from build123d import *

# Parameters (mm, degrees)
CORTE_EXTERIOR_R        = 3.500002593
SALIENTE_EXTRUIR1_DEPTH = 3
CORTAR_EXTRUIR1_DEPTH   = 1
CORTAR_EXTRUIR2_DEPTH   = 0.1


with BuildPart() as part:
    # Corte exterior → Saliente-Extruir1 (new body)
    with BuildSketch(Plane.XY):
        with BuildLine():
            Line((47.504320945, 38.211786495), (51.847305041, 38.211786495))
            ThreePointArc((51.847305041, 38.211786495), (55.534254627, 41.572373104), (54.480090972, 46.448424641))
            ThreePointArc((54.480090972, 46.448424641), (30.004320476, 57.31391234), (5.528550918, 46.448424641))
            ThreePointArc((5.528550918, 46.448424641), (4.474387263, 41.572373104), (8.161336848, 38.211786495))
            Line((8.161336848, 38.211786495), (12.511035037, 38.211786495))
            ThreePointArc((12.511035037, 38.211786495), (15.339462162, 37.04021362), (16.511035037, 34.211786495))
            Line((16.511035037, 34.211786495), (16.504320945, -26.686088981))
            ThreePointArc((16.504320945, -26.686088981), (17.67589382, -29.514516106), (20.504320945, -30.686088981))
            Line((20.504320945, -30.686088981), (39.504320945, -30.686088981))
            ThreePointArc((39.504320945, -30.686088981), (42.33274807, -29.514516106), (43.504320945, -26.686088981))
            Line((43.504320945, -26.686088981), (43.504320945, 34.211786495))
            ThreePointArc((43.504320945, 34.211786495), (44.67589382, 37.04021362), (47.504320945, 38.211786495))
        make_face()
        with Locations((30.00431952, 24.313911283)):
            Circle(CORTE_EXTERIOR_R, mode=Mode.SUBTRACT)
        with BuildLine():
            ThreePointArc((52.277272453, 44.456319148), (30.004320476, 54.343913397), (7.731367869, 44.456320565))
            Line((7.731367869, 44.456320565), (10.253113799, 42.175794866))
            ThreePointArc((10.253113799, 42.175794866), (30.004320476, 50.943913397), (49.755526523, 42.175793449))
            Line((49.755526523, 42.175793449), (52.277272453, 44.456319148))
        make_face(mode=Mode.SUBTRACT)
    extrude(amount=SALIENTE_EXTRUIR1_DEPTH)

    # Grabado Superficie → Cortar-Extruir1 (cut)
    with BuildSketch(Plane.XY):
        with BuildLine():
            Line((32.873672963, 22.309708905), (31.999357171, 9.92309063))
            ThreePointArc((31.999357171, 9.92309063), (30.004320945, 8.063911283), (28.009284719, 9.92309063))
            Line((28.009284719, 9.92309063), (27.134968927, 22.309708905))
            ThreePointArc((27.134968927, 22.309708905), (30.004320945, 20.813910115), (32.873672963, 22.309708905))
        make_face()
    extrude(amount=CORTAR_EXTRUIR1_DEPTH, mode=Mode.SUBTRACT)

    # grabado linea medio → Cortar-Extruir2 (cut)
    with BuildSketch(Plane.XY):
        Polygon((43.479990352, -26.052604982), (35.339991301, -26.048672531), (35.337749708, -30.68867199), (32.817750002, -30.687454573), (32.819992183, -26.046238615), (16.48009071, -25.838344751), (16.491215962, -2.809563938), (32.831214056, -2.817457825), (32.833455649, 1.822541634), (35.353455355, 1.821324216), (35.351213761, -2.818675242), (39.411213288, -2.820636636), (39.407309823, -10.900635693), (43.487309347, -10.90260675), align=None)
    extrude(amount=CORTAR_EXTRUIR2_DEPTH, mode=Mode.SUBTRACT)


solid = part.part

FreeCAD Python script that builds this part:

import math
import FreeCAD as App
import Part
import Sketcher
from FreeCAD import Vector


def add_polygon(sketch, points):
    """Adds a closed chain of lines whose ends are joined by coincident constraints."""
    first, n = sketch.GeometryCount, len(points)
    for a, b in zip(points, points[1:] + points[:1]):
        sketch.addGeometry(Part.LineSegment(App.Vector(*a, 0), App.Vector(*b, 0)), False)
    for i in range(n):
        sketch.addConstraint(Sketcher.Constraint("Coincident", first + i, 2, first + (i + 1) % n, 1))

doc = App.newDocument("Part")
body = doc.addObject("PartDesign::Body", "Body")

# Sketch on XY plane
sketch1 = doc.addObject("Sketcher::SketchObject", "Sketch")
body.addObject(sketch1)
sketch1.AttachmentSupport = (doc.XY_Plane, [""])
sketch1.MapMode = "FlatFace"
sketch1.addGeometry([
    Part.LineSegment(Vector(47.5, 38.2, 0), Vector(51.8, 38.2, 0)),  # 0
    Part.ArcOfCircle(Part.Circle(Vector(50.8, 43.1, 0), Vector(0, 0, 1), 5), math.radians(-78), math.radians(42)),  # 1
    Part.ArcOfCircle(Part.Circle(Vector(30, 24.3, 0), Vector(0, 0, 1), 33), math.radians(42), math.radians(138)),  # 2
    Part.ArcOfCircle(Part.Circle(Vector(9.2, 43.1, 0), Vector(0, 0, 1), 5), math.radians(138), math.radians(258)),  # 3
    Part.LineSegment(Vector(8.2, 38.2, 0), Vector(12.5, 38.2, 0)),  # 4
    Part.ArcOfCircle(Part.Circle(Vector(12.5, 34.2, 0), Vector(0, 0, 1), 4), math.radians(0), math.radians(90)),  # 5
    Part.LineSegment(Vector(16.5, 34.2, 0), Vector(16.5, -26.7, 0)),  # 6
    Part.ArcOfCircle(Part.Circle(Vector(20.5, -26.7, 0), Vector(0, 0, 1), 4), math.radians(180), math.radians(270)),  # 7
    Part.LineSegment(Vector(20.5, -30.7, 0), Vector(39.5, -30.7, 0)),  # 8
    Part.ArcOfCircle(Part.Circle(Vector(39.5, -26.7, 0), Vector(0, 0, 1), 4), math.radians(-90), math.radians(0)),  # 9
    Part.LineSegment(Vector(43.5, -26.7, 0), Vector(43.5, 34.2, 0)),  # 10
    Part.ArcOfCircle(Part.Circle(Vector(47.5, 34.2, 0), Vector(0, 0, 1), 4), math.radians(90), math.radians(180)),  # 11
    Part.Circle(Vector(30, 24.3, 0), Vector(0, 0, 1), 3.5),  # 12
    Part.ArcOfCircle(Part.Circle(Vector(30, 24.3, 0), Vector(0, 0, 1), 30), math.radians(42), math.radians(138)),  # 13
    Part.LineSegment(Vector(52.3, 44.5, 0), Vector(49.8, 42.2, 0)),  # 14
    Part.ArcOfCircle(Part.Circle(Vector(30, 24.3, 0), Vector(0, 0, 1), 26.6), math.radians(42), math.radians(138)),  # 15
    Part.LineSegment(Vector(10.3, 42.2, 0), Vector(7.7, 44.5, 0)),  # 16
], False)
sketch1.addConstraint([
    Sketcher.Constraint("Coincident", 0, 2, 1, 1),
    Sketcher.Constraint("Tangent", 1, 2, 2, 1),
    Sketcher.Constraint("Tangent", 2, 2, 3, 1),
    Sketcher.Constraint("Coincident", 3, 2, 4, 1),
    Sketcher.Constraint("Tangent", 4, 2, 5, 2),
    Sketcher.Constraint("Coincident", 5, 1, 6, 1),
    Sketcher.Constraint("Coincident", 6, 2, 7, 1),
    Sketcher.Constraint("Tangent", 7, 2, 8, 1),
    Sketcher.Constraint("Tangent", 8, 2, 9, 1),
    Sketcher.Constraint("Tangent", 9, 2, 10, 1),
    Sketcher.Constraint("Tangent", 10, 2, 11, 2),
    Sketcher.Constraint("Tangent", 11, 1, 0, 1),
    Sketcher.Constraint("Coincident", 13, 1, 14, 1),
    Sketcher.Constraint("Coincident", 14, 2, 15, 1),
    Sketcher.Constraint("Coincident", 15, 2, 16, 1),
    Sketcher.Constraint("Coincident", 16, 2, 13, 2),
    Sketcher.Constraint("Horizontal", 0),
    Sketcher.Constraint("Horizontal", 4),
    Sketcher.Constraint("Horizontal", 8),
    Sketcher.Constraint("Vertical", 10),
    Sketcher.Constraint("Coincident", 12, 3, 2, 3),
    Sketcher.Constraint("Coincident", 13, 3, 2, 3),
    Sketcher.Constraint("Coincident", 15, 3, 2, 3),
    Sketcher.Constraint("Equal", 1, 3),
    Sketcher.Constraint("Equal", 5, 7),
    Sketcher.Constraint("Equal", 7, 9),
    Sketcher.Constraint("Equal", 9, 11),
    Sketcher.Constraint("Horizontal", 1, 3, 3, 3),
    Sketcher.Constraint("Horizontal", 5, 3, 11, 3),
    Sketcher.Constraint("Horizontal", 11, 3, 5, 1),
    Sketcher.Constraint("Horizontal", 9, 3, 6, 2),
    Sketcher.Constraint("Horizontal", 14, 2, 15, 2),
    Sketcher.Constraint("Horizontal", 13, 1, 16, 2),
    Sketcher.Constraint("Radius", 1, 5.0),
    Sketcher.Constraint("Radius", 5, 4.0),
    Sketcher.Constraint("DistanceX", 8, 1, 8, 2, 19.0),
    Sketcher.Constraint("DistanceY", 6, 2, 12, 3, 51.0),
    Sketcher.Constraint("Distance", 14, 3.4),
    Sketcher.Constraint("DistanceX", 7, 3, 2, 3, 9.5),
    Sketcher.Constraint("Diameter", 12, 7.000005),
    Sketcher.Constraint("DistanceX", 4, 1, 4, 2, 4.349698),
    Sketcher.Constraint("DistanceX", -1, 1, 3, 3, 9.237001),
    Sketcher.Constraint("Radius", 2, 32.999998),
    Sketcher.Constraint("Radius", 13, 30.030002),
    Sketcher.Constraint("DistanceY", 7, 3, 3, 3, 69.780799),
    Sketcher.Constraint("DistanceX", 0, 1, 0, 2, 4.342984),
    Sketcher.Constraint("DistanceY", -1, 1, 1, 3, 43.09471),
    Sketcher.Constraint("DistanceY", -1, 1, 13, 1, 44.456319),
    Sketcher.Constraint("DistanceX", 14, 2, 0, 2, 2.091779),
])
pad1 = doc.addObject("PartDesign::Pad", "Pad")
body.addObject(pad1)
pad1.Profile = sketch1
pad1.Length = 3

# Sketch on XY plane
sketch2 = doc.addObject("Sketcher::SketchObject", "Sketch001")
body.addObject(sketch2)
sketch2.AttachmentSupport = (doc.XY_Plane, [""])
sketch2.MapMode = "FlatFace"
sketch2.addGeometry([
    Part.LineSegment(Vector(32, 9.9, 0), Vector(32.9, 22.3, 0)),
    Part.ArcOfCircle(Part.Circle(Vector(30, 24.3, 0), Vector(0, 0, 1), 3.5), math.radians(-145), math.radians(-35)),
    Part.LineSegment(Vector(27.1, 22.3, 0), Vector(28, 9.9, 0)),
    Part.ArcOfCircle(Part.Circle(Vector(30, 10.1, 0), Vector(0, 0, 1), 2), math.radians(-176), math.radians(-4)),
], False)
sketch2.addConstraint([
    Sketcher.Constraint("Coincident", 0, 2, 1, 2),
    Sketcher.Constraint("Coincident", 1, 1, 2, 1),
    Sketcher.Constraint("Tangent", 2, 2, 3, 1),
    Sketcher.Constraint("Tangent", 3, 2, 0, 1),
    Sketcher.Constraint("Horizontal", 0, 2, 1, 1),
    Sketcher.Constraint("Horizontal", 2, 2, 3, 2),
    Sketcher.Constraint("Radius", 3, 2.0),
    Sketcher.Constraint("Radius", 1, 3.500001),
    Sketcher.Constraint("DistanceY", 3, 3, 1, 3, 14.25),
    Sketcher.Constraint("DistanceX", -1, 1, 1, 3, 30.004321),
    Sketcher.Constraint("DistanceY", -1, 1, 1, 3, 24.313911),
    Sketcher.Constraint("DistanceY", -1, 1, 0, 2, 22.309709),
])
pocket1 = doc.addObject("PartDesign::Pocket", "Pocket")
body.addObject(pocket1)
pocket1.Profile = sketch2
pocket1.Length = 1
pocket1.Reversed = True

# Sketch on XY plane
sketch3 = doc.addObject("Sketcher::SketchObject", "Sketch002")
body.addObject(sketch3)
sketch3.AttachmentSupport = (doc.XY_Plane, [""])
sketch3.MapMode = "FlatFace"
add_polygon(sketch3, [(35.3, -26), (43.5, -26.1), (43.5, -10.9), (39.4, -10.9), (39.4, -2.8), (35.4, -2.8), (35.4, 1.8), (32.8, 1.8), (32.8, -2.8), (16.5, -2.8), (16.5, -25.8), (32.8, -26), (32.8, -30.7), (35.3, -30.7)])  # lines 0-13
sketch3.addConstraint([
    Sketcher.Constraint("Perpendicular", 0, 1),
    Sketcher.Constraint("Perpendicular", 1, 2),
    Sketcher.Constraint("Perpendicular", 2, 3),
    Sketcher.Constraint("Perpendicular", 3, 4),
    Sketcher.Constraint("Perpendicular", 4, 5),
    Sketcher.Constraint("Perpendicular", 5, 6),
    Sketcher.Constraint("Perpendicular", 6, 7),
    Sketcher.Constraint("Perpendicular", 7, 8),
    Sketcher.Constraint("Perpendicular", 8, 9),
    Sketcher.Constraint("Parallel", 9, 11),
    Sketcher.Constraint("Perpendicular", 11, 12),
    Sketcher.Constraint("Perpendicular", 12, 13),
    Sketcher.Constraint("Equal", 5, 7),
    Sketcher.Constraint("Equal", 6, 12),
    Sketcher.Constraint("Equal", 7, 13),
    Sketcher.Constraint("Distance", 0, 8.14),
    Sketcher.Constraint("Distance", 1, 15.15),
    Sketcher.Constraint("Distance", 2, 4.08),
    Sketcher.Constraint("Distance", 3, 8.08),
    Sketcher.Constraint("Distance", 4, 4.06),
    Sketcher.Constraint("Distance", 5, 4.64),
    Sketcher.Constraint("Distance", 6, 2.52),
    Sketcher.Constraint("Distance", 8, 16.34),
    Sketcher.Constraint("DistanceX", -1, 1, 0, 2, 43.47999),
    Sketcher.Constraint("DistanceX", -1, 1, 1, 2, 43.487309),
    Sketcher.Constraint("DistanceY", -1, 1, 6, 2, 1.822542),
    Sketcher.Constraint("DistanceY", 10, 2, -1, 1, 26.046239),
    Sketcher.Constraint("DistanceY", 9, 2, 8, 2, 23.028781),
])
pocket2 = doc.addObject("PartDesign::Pocket", "Pocket001")
body.addObject(pocket2)
pocket2.Profile = sketch3
pocket2.Length = 0.1
pocket2.Reversed = True

doc.recompute()
